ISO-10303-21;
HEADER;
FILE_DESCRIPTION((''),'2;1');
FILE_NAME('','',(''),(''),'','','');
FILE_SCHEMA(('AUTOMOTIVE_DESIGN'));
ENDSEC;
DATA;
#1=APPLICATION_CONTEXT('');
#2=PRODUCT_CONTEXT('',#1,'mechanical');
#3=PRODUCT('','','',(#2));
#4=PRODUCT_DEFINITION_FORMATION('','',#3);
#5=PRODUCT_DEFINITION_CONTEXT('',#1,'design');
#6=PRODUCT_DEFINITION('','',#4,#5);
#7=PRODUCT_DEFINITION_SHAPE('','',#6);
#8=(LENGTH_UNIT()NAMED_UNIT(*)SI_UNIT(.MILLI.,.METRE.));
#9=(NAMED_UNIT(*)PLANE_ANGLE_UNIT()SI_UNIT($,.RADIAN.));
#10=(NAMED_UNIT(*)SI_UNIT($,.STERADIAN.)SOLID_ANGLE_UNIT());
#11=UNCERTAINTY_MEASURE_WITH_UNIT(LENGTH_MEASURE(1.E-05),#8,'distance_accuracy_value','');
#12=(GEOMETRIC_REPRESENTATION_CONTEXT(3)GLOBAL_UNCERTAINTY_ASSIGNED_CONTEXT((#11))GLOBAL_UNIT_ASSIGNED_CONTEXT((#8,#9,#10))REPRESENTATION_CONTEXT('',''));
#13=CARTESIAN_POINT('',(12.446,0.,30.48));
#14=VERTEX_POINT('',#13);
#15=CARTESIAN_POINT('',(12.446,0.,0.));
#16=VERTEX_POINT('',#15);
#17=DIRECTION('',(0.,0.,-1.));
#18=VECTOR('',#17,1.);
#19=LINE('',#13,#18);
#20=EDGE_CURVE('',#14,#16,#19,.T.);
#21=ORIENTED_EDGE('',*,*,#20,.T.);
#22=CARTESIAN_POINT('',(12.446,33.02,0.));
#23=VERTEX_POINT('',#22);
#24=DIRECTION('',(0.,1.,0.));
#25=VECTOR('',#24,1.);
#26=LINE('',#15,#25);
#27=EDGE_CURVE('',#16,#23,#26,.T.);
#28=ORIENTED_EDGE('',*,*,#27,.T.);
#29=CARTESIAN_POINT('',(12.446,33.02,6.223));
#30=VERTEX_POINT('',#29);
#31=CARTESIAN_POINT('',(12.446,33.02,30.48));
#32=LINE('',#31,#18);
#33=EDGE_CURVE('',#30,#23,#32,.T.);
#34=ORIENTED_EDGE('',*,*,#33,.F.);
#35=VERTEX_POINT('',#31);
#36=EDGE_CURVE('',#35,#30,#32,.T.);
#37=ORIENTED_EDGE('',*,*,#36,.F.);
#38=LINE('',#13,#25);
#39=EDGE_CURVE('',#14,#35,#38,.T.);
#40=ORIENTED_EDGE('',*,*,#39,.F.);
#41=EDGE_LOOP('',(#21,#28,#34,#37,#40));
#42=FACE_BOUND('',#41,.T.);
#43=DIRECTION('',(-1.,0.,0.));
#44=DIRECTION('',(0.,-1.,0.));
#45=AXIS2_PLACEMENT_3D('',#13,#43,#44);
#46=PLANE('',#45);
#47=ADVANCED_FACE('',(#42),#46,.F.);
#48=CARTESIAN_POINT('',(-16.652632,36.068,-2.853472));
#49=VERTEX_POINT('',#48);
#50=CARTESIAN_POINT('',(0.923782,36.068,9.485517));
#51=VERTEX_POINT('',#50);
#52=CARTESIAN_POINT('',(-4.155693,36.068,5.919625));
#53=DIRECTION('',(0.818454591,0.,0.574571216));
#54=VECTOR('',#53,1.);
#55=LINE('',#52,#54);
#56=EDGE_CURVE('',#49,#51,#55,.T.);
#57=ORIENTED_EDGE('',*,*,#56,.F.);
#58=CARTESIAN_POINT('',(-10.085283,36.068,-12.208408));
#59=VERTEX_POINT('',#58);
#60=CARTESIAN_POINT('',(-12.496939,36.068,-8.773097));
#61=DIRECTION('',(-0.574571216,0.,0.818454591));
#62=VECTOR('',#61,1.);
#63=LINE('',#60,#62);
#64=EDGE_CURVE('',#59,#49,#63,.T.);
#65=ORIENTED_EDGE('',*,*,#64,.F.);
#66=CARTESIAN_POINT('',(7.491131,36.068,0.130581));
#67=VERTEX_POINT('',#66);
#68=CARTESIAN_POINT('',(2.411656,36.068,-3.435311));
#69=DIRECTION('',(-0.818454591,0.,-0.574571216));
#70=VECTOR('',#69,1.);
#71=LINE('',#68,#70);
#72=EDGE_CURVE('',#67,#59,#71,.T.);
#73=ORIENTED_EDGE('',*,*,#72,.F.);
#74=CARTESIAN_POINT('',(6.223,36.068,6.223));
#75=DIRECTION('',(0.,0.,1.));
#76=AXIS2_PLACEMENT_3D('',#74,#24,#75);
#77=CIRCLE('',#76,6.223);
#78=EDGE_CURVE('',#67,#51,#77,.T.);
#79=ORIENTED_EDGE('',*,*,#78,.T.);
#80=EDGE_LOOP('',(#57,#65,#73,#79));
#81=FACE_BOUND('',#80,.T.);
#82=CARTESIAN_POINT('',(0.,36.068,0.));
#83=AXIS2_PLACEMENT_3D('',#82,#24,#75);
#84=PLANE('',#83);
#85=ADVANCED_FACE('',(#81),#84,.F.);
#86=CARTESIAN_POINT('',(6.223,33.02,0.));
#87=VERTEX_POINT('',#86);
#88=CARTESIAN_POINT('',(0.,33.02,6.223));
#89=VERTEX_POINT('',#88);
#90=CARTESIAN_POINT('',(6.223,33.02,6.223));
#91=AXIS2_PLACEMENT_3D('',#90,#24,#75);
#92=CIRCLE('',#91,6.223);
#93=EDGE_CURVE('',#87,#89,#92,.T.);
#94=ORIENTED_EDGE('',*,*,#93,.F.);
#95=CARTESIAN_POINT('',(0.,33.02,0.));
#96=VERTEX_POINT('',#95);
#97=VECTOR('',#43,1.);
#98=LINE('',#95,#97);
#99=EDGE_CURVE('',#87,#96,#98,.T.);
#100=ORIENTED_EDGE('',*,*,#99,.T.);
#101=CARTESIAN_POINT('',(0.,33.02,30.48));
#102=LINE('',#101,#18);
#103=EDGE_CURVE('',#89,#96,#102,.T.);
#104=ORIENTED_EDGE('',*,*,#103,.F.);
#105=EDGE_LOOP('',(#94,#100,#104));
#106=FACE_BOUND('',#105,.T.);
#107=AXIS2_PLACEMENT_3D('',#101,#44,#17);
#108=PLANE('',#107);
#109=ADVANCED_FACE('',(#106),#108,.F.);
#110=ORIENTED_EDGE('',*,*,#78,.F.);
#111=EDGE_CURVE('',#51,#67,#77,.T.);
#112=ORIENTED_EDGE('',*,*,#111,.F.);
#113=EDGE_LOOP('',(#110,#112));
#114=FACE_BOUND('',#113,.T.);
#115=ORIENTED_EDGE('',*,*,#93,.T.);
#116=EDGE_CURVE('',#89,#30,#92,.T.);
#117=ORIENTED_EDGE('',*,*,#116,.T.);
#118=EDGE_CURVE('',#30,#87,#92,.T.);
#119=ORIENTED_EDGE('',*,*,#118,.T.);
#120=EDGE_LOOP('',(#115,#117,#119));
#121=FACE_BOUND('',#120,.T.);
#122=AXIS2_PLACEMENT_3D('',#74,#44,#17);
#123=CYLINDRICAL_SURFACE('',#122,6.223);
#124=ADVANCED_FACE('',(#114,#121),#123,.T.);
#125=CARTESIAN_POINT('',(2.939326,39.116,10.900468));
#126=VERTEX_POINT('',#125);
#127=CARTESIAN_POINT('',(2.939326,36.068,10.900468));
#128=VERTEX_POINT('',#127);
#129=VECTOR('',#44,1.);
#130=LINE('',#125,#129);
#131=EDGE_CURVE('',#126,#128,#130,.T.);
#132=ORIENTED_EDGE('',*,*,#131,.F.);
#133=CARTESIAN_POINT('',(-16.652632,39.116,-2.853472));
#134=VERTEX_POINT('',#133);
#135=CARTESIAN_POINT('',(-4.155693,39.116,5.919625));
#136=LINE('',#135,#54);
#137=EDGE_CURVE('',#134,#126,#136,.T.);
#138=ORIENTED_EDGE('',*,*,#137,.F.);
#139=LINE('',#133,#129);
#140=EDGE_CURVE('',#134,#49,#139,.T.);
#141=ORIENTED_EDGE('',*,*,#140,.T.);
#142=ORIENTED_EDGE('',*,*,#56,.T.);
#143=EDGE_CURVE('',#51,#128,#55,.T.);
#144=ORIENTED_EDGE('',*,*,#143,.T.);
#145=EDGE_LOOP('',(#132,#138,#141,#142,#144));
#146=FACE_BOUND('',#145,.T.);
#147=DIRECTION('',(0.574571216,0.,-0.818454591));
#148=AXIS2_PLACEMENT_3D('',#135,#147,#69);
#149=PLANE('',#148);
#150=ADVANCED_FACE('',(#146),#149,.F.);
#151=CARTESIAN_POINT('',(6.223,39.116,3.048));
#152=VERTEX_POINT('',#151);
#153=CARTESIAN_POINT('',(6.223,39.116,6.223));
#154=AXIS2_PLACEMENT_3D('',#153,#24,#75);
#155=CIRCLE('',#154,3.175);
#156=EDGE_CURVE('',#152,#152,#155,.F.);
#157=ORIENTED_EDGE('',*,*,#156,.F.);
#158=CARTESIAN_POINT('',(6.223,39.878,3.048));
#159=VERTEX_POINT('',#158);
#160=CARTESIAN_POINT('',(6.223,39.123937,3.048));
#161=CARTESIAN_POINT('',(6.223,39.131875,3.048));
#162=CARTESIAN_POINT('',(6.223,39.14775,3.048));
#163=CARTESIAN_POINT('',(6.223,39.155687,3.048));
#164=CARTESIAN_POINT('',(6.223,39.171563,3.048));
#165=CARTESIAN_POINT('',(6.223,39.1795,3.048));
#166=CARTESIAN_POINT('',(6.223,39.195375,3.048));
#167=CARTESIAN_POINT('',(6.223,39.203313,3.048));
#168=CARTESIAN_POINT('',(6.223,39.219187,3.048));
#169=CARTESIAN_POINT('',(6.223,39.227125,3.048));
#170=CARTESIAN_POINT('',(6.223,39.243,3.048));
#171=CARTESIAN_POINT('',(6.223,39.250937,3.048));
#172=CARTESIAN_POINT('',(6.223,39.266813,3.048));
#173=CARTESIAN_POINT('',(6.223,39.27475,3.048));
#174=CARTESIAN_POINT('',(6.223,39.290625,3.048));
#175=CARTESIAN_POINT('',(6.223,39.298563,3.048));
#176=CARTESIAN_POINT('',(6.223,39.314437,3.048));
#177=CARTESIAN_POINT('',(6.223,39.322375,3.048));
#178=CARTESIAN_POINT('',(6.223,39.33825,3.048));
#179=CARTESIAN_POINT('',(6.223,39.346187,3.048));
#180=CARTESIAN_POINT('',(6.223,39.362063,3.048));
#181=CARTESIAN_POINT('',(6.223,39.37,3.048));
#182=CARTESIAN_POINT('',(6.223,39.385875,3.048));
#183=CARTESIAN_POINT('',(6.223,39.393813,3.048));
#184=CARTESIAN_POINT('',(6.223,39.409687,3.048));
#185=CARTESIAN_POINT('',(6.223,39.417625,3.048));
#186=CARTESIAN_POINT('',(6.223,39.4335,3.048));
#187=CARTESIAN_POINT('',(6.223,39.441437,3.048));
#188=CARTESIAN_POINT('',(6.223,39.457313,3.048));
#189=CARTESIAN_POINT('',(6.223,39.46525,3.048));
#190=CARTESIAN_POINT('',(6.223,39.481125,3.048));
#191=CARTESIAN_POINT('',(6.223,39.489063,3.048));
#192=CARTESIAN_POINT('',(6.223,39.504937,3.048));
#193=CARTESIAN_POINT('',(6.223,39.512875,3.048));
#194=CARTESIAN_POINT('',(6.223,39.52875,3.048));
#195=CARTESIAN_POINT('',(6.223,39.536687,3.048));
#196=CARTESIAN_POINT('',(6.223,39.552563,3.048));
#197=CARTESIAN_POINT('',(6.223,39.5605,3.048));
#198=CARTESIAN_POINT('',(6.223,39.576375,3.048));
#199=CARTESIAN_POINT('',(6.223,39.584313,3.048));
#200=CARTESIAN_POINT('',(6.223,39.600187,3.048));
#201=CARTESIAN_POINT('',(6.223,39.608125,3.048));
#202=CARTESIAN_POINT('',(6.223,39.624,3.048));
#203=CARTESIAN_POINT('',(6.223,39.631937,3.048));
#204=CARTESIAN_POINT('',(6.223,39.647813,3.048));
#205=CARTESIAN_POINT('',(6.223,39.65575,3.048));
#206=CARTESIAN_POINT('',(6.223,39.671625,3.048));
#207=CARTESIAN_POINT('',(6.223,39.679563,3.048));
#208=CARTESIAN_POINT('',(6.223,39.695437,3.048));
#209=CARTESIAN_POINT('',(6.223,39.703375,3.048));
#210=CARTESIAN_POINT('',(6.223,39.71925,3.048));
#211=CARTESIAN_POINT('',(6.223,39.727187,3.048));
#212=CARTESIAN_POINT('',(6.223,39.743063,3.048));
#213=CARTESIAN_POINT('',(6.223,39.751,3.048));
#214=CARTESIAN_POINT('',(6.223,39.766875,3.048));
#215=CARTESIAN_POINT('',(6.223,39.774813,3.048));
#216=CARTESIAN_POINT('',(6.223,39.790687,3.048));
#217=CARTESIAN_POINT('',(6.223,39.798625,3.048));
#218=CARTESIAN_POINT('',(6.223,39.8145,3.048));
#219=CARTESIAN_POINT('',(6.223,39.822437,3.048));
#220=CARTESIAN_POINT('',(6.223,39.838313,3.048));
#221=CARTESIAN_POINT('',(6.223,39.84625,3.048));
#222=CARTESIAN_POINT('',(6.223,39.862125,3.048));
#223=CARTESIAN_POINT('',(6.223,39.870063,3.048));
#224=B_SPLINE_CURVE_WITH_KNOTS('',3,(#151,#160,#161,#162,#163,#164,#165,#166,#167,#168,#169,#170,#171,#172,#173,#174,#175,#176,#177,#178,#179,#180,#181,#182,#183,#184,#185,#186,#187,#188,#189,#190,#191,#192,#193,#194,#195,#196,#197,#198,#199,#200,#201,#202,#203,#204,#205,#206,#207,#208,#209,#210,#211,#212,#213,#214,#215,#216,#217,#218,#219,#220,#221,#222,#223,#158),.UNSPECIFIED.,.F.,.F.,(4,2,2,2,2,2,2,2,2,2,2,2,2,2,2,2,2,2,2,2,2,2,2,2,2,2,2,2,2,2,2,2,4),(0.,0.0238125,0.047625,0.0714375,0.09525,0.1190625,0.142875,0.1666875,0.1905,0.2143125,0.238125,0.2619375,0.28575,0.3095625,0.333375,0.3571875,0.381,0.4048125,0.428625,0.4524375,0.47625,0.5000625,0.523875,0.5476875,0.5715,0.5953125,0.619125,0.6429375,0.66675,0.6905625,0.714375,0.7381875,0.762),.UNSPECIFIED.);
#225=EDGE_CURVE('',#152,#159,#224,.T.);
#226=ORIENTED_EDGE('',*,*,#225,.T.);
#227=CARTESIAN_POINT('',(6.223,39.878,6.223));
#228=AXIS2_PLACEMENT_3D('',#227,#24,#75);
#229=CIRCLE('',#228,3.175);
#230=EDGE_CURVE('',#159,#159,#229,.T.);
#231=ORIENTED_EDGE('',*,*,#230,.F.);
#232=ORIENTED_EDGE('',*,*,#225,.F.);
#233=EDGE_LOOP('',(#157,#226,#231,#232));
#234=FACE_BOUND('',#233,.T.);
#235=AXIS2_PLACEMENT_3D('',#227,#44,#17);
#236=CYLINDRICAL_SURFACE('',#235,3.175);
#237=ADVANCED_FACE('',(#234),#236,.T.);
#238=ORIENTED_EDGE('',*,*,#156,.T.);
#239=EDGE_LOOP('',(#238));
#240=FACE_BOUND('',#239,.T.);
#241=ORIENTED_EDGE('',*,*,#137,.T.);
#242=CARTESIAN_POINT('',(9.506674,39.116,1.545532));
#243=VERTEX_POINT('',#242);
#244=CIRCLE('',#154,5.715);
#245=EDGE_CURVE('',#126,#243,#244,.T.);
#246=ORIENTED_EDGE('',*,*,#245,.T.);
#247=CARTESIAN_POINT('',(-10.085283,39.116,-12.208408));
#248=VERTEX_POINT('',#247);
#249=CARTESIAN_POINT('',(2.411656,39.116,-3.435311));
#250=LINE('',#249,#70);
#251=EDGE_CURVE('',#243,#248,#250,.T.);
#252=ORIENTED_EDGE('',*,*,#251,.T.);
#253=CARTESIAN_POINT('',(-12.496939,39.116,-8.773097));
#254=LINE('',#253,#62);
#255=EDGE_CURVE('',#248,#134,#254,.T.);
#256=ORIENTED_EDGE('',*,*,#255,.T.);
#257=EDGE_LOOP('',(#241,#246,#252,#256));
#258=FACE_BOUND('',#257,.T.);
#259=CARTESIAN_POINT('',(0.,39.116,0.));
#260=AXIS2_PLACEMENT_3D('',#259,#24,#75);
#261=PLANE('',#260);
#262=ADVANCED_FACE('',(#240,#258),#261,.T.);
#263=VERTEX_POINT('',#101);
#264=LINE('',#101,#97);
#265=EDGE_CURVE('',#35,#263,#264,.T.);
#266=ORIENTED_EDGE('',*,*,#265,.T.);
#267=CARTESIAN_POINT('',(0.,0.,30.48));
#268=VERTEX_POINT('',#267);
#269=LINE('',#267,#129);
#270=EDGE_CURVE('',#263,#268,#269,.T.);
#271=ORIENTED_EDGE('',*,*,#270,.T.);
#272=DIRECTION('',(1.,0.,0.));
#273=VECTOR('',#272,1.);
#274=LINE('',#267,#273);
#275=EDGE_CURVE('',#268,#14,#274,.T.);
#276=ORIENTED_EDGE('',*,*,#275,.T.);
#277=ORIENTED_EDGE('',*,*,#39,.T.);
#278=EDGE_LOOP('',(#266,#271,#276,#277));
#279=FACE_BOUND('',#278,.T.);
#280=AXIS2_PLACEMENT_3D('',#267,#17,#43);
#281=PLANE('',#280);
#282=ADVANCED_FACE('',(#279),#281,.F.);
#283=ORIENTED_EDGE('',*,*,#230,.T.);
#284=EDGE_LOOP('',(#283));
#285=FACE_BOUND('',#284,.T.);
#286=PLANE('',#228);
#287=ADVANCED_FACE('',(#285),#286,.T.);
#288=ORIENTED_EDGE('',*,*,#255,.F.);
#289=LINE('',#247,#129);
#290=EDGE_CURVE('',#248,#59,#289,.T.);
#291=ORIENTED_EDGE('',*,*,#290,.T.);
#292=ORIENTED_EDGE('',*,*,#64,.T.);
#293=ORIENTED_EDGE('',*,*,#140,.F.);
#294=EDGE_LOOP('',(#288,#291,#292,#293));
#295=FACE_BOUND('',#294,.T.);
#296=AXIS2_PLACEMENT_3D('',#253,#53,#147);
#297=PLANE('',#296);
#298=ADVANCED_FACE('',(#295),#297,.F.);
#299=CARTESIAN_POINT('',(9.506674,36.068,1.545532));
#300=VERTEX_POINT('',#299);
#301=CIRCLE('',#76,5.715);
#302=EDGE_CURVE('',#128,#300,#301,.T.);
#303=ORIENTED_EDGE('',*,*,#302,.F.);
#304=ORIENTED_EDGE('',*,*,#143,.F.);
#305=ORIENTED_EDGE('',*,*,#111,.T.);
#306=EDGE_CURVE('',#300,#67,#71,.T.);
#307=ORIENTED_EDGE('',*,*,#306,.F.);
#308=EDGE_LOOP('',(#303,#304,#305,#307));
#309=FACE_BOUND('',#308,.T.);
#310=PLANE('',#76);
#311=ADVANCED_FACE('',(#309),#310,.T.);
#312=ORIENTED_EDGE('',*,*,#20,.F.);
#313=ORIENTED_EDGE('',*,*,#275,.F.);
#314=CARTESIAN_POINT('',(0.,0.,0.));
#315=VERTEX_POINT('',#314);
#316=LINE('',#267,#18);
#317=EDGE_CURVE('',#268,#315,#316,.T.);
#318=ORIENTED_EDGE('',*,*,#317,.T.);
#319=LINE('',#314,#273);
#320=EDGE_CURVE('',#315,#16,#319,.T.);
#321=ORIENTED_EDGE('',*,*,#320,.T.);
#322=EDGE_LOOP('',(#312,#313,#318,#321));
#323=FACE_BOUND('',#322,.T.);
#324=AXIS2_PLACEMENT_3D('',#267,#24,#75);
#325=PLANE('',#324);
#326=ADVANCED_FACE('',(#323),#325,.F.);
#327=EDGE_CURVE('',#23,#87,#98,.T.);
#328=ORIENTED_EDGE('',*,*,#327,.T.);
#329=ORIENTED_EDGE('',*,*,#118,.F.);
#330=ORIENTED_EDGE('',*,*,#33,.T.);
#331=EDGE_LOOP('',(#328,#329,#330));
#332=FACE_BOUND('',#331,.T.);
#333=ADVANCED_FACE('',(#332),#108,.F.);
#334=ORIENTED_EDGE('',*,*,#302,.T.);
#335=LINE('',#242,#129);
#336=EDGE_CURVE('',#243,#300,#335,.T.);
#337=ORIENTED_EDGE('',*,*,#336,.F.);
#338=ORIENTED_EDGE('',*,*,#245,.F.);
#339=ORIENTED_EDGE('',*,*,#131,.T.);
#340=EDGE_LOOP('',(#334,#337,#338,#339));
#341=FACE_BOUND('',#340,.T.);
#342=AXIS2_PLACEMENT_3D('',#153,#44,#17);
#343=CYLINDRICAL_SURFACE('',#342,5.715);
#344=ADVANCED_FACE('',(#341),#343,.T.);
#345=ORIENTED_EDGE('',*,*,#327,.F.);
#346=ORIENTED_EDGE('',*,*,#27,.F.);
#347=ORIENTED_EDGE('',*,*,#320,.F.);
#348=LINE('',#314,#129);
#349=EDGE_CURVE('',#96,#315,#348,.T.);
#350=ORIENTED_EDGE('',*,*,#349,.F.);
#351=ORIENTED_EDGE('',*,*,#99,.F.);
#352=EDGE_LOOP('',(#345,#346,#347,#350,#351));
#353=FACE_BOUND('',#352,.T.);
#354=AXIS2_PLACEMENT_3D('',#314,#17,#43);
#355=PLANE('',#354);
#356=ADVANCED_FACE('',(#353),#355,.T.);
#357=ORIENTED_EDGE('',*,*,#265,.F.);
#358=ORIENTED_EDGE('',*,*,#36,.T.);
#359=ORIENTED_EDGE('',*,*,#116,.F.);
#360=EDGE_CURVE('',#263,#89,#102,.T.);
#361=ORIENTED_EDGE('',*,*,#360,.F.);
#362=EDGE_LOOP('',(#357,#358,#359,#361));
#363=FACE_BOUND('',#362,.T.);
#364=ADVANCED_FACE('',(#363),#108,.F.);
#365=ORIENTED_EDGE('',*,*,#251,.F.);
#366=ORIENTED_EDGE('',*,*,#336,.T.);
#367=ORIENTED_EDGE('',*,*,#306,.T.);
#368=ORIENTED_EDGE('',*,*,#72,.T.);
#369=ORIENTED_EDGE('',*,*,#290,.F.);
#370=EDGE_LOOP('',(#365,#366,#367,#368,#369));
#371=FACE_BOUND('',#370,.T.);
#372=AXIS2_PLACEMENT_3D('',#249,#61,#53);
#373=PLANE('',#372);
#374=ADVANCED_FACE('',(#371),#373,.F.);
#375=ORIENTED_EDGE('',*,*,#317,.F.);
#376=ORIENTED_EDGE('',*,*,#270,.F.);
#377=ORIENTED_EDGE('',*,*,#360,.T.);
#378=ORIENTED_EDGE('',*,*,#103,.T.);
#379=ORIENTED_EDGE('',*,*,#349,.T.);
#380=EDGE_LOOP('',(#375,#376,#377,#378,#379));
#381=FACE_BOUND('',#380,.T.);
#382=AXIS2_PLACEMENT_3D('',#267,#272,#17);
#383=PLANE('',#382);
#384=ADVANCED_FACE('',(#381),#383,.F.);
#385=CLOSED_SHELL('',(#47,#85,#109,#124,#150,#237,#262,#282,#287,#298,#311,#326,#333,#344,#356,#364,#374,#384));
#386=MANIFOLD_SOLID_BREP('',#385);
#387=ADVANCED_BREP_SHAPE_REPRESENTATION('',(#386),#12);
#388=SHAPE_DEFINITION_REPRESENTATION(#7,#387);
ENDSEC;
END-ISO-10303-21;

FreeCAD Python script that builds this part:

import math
import FreeCAD as App
import Part
import Sketcher

V = App.Vector
Q = App.Units.Quantity


def add_polygon(sketch, points):
    """Adds a closed chain of lines whose ends are joined by coincident constraints."""
    first, n = sketch.GeometryCount, len(points)
    for a, b in zip(points, points[1:] + points[:1]):
        sketch.addGeometry(Part.LineSegment(App.Vector(*a, 0), App.Vector(*b, 0)), False)
    for i in range(n):
        sketch.addConstraint(Sketcher.Constraint("Coincident", first + i, 2, first + (i + 1) % n, 1))

doc = App.newDocument("Part")
body = doc.addObject("PartDesign::Body", "Body")

sketch1 = body.newObject("Sketcher::SketchObject", "Sketch")
sketch1.AttachmentSupport = (doc.getObject("XY_Plane"), [""])
sketch1.MapMode = "FlatFace"
add_polygon(sketch1, [(0, 33.02), (0, 0), (12.446, 0), (12.446, 33.02)])
sketch1.addConstraint(Sketcher.Constraint("Vertical", 0))
sketch1.addConstraint(Sketcher.Constraint("Horizontal", 1))
sketch1.addConstraint(Sketcher.Constraint("Vertical", 2))
sketch1.addConstraint(Sketcher.Constraint("Horizontal", 3))
sketch1.addConstraint(Sketcher.Constraint("Coincident", 0, 2, -1, 1))
sketch1.addConstraint(Sketcher.Constraint("DistanceY", 0, 2, 0, 1, Q("1.3 in")))
sketch1.addConstraint(Sketcher.Constraint("DistanceX", 1, 1, 1, 2, Q("0.49 in")))
pad1 = body.newObject("PartDesign::Pad", "Pad")
pad1.Profile = sketch1
pad1.Length = Q("1.2 in")

sketch2 = body.newObject("Sketcher::SketchObject", "Sketch001")
sketch2.AttachmentSupport = (doc.getObject("XZ_Plane"), [""])
sketch2.MapMode = "FlatFace"
sketch2.AttachmentOffset = App.Placement(V(0, 0, -1.3 * 25.4), App.Rotation())
sketch2.addGeometry(Part.Circle(V(6.223, 6.223, 0), V(0, 0, 1), 6.223), False)
sketch2.addConstraint(Sketcher.Constraint("Diameter", 0, Q("0.49 in")))
sketch2.addConstraint(Sketcher.Constraint("DistanceX", -1, 1, 0, 3, Q("0.245 in")))
sketch2.addConstraint(Sketcher.Constraint("DistanceY", -1, 1, 0, 3, Q("0.245 in")))
pad2 = body.newObject("PartDesign::Pad", "Pad001")
pad2.Profile = sketch2
pad2.Length = Q("0.12 in")
pad2.Reversed = True

sketch3 = body.newObject("Sketcher::SketchObject", "Sketch002")
sketch3.AttachmentSupport = (doc.getObject("XZ_Plane"), [""])
sketch3.MapMode = "FlatFace"
sketch3.AttachmentOffset = App.Placement(V(0, 0, -1.42 * 25.4), App.Rotation())
sketch3.addGeometry(Part.Circle(V(6.223, 6.223, 0), V(0, 0, 1), 3.175), False)
sketch3.addConstraint(Sketcher.Constraint("Diameter", 0, Q("0.25 in")))
sketch3.addConstraint(Sketcher.Constraint("DistanceX", -1, 1, 0, 3, Q("0.245 in")))
sketch3.addConstraint(Sketcher.Constraint("DistanceY", -1, 1, 0, 3, Q("0.245 in")))
pad3 = body.newObject("PartDesign::Pad", "Pad002")
pad3.Profile = sketch3
pad3.Length = Q("0.15 in")
pad3.Reversed = True

sketch4 = body.newObject("Sketcher::SketchObject", "Sketch003")
sketch4.AttachmentSupport = (doc.getObject("XZ_Plane"), [""])
sketch4.MapMode = "FlatFace"
sketch4.AttachmentOffset = App.Placement(V(0, 0, -1.42 * 25.4), App.Rotation())
sketch4.addGeometry(Part.LineSegment(V(9.506675, 1.545532, 0), V(7.491131, 0.130581, 0)), False)
sketch4.addGeometry(Part.LineSegment(V(7.491131, 0.130581, 0), V(-10.085283, -12.208408, 0)), False)
sketch4.addGeometry(Part.LineSegment(V(-10.085283, -12.208408, 0), V(-16.652632, -2.853472, 0)), False)
sketch4.addGeometry(Part.LineSegment(V(-16.652632, -2.853472, 0), V(0.923782, 9.485517, 0)), False)
sketch4.addGeometry(Part.LineSegment(V(0.923782, 9.485517, 0), V(2.939325, 10.900468, 0)), False)
sketch4.addGeometry(Part.ArcOfCircle(Part.Circle(V(6.223, 6.223, 0), V(0, 0, 1), 5.715), math.radians(-54.93039), math.radians(125.06961)), False)
sketch4.addGeometry(Part.Circle(V(6.223, 6.223, 0), V(0, 0, 1), 3.175), False)
sketch4.addConstraint(Sketcher.Constraint("Coincident", 0, 2, 1, 1))
sketch4.addConstraint(Sketcher.Constraint("Coincident", 1, 2, 2, 1))
sketch4.addConstraint(Sketcher.Constraint("Coincident", 2, 2, 3, 1))
sketch4.addConstraint(Sketcher.Constraint("Coincident", 3, 2, 4, 1))
sketch4.addConstraint(Sketcher.Constraint("Tangent", 4, 2, 5, 2))
sketch4.addConstraint(Sketcher.Constraint("Tangent", 5, 1, 0, 1))
sketch4.addConstraint(Sketcher.Constraint("Coincident", 6, 3, 5, 3))
sketch4.addConstraint(Sketcher.Constraint("Parallel", 0, 1))
sketch4.addConstraint(Sketcher.Constraint("Perpendicular", 1, 2))
sketch4.addConstraint(Sketcher.Constraint("Perpendicular", 2, 3))
sketch4.addConstraint(Sketcher.Constraint("Parallel", 3, 4))
sketch4.addConstraint(Sketcher.Constraint("Equal", 1, 3))
sketch4.addConstraint(Sketcher.Constraint("Diameter", 6, Q("0.25 in")))
sketch4.addConstraint(Sketcher.Constraint("Radius", 5, Q("0.225 in")))
sketch4.addConstraint(Sketcher.Constraint("DistanceX", -1, 1, 5, 3, Q("0.245 in")))
sketch4.addConstraint(Sketcher.Constraint("DistanceY", -1, 1, 5, 3, Q("0.245 in")))
sketch4.addConstraint(Sketcher.Constraint("Distance", 0, 2.462621))
sketch4.addConstraint(Sketcher.Constraint("DistanceX", -1, 1, 0, 2, 7.491131))
sketch4.addConstraint(Sketcher.Constraint("DistanceY", 2, 2, -1, 1, 2.853472))
pad4 = body.newObject("PartDesign::Pad", "Pad003")
pad4.Profile = sketch4
pad4.Length = Q("0.12 in")
pad4.Reversed = True

doc.recompute()
